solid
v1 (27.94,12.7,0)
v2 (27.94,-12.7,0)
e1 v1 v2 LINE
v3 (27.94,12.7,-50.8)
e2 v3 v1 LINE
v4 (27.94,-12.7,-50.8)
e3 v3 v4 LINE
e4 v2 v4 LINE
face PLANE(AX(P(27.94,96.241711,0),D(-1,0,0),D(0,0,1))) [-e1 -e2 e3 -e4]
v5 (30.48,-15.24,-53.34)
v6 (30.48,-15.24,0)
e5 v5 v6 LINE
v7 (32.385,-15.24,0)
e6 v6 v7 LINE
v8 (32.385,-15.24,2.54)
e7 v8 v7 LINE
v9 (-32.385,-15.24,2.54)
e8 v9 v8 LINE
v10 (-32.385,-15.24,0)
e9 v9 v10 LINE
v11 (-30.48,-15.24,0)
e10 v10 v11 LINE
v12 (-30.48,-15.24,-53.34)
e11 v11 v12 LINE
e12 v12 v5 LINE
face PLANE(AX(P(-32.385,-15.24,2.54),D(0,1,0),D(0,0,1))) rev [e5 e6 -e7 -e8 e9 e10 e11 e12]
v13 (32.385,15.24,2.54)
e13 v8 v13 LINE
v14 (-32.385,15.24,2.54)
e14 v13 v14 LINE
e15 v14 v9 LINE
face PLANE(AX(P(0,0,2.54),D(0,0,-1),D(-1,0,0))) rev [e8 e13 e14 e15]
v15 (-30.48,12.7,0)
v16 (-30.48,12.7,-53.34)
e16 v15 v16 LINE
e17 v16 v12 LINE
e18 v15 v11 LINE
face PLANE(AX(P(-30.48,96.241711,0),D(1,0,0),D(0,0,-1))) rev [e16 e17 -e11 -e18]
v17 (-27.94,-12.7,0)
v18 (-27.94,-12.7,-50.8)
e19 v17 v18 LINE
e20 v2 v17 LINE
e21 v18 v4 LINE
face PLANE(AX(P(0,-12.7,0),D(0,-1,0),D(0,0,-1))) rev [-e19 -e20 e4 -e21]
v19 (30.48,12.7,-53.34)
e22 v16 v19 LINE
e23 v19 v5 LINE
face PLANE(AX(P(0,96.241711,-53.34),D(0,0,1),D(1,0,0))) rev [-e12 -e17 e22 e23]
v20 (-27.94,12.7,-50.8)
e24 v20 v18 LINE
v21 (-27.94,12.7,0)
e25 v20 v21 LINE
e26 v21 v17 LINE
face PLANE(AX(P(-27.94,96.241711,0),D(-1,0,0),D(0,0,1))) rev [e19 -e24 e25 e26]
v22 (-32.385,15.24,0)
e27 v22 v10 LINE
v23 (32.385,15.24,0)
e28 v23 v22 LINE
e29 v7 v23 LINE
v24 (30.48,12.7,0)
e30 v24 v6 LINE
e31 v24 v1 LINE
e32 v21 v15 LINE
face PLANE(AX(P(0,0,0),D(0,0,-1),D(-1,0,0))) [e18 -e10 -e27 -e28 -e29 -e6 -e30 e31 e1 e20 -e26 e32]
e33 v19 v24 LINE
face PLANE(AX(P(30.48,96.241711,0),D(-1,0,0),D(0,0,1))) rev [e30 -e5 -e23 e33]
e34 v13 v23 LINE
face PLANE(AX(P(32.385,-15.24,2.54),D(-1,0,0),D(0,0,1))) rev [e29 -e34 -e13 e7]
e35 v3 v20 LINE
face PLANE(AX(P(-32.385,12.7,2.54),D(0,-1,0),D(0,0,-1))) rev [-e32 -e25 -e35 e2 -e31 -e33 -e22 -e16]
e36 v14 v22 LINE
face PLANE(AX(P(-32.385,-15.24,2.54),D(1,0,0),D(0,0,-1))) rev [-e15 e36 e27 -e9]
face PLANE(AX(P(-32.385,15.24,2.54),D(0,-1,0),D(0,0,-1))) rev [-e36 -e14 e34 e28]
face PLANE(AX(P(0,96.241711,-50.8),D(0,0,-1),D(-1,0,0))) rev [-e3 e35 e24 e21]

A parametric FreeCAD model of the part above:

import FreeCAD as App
import Part
import Sketcher

V = App.Vector
Q = App.Units.Quantity

doc = App.newDocument("Part")
body = doc.addObject("PartDesign::Body", "Body")

sketch1 = doc.addObject("Sketcher::SketchObject", "Sketch")
body.addObject(sketch1)
sketch1.AttachmentSupport = (doc.XY_Plane, [""])
sketch1.MapMode = "FlatFace"
sketch1.addGeometry([
    Part.LineSegment(V(-32, 15, 0), V(-32, -15, 0)),
    Part.LineSegment(V(-32, -15, 0), V(32, -15, 0)),
    Part.LineSegment(V(32, -15, 0), V(32, 15, 0)),
    Part.LineSegment(V(32, 15, 0), V(-32, 15, 0)),
], False)
sketch1.addConstraint([
    Sketcher.Constraint("Coincident", 0, 2, 1, 1),
    Sketcher.Constraint("Coincident", 1, 2, 2, 1),
    Sketcher.Constraint("Coincident", 2, 2, 3, 1),
    Sketcher.Constraint("Coincident", 3, 2, 0, 1),
    Sketcher.Constraint("Vertical", 0),
    Sketcher.Constraint("Horizontal", 1),
    Sketcher.Constraint("Vertical", 2),
    Sketcher.Constraint("Horizontal", 3),
    Sketcher.Constraint("Symmetric", 0, 2, 2, 2, -1, 1),
    Sketcher.Constraint("DistanceY", 0, 2, 0, 1, Q("1.2 in")),
    Sketcher.Constraint("DistanceX", 1, 1, 1, 2, Q("2.55 in")),
])
pad1 = doc.addObject("PartDesign::Pad", "Pad")
body.addObject(pad1)
pad1.Profile = sketch1
pad1.Length = Q("0.1 in")
body2 = doc.addObject("PartDesign::Body", "Body001")

sketch2 = doc.addObject("Sketcher::SketchObject", "Sketch001")
body2.addObject(sketch2)
sketch2.AttachmentSupport = (doc.getObject("XZ_Plane001"), [""])
sketch2.MapMode = "FlatFace"
sketch2.AttachmentOffset = App.Placement(V(0, 0, 0.6 * 25.4), App.Rotation())
sketch2.addGeometry([
    Part.LineSegment(V(-30, 0, 0), V(-30, -53, 0)),
    Part.LineSegment(V(-30, -53, 0), V(30, -53, 0)),
    Part.LineSegment(V(30, -53, 0), V(30, 0, 0)),
    Part.LineSegment(V(30, 0, 0), V(-30, 0, 0)),
], False)
sketch2.addConstraint([
    Sketcher.Constraint("Coincident", 0, 2, 1, 1),
    Sketcher.Constraint("Coincident", 1, 2, 2, 1),
    Sketcher.Constraint("Coincident", 2, 2, 3, 1),
    Sketcher.Constraint("Coincident", 3, 2, 0, 1),
    Sketcher.Constraint("Vertical", 0),
    Sketcher.Constraint("Horizontal", 1),
    Sketcher.Constraint("Vertical", 2),
    Sketcher.Constraint("Horizontal", 3),
    Sketcher.Constraint("Symmetric", 2, 2, 3, 2, -1, 1),
    Sketcher.Constraint("DistanceX", 1, 1, 1, 2, Q("2.4 in")),
    Sketcher.Constraint("DistanceY", 0, 2, 0, 1, Q("2.1 in")),
])
pad2 = doc.addObject("PartDesign::Pad", "Pad001")
body2.addObject(pad2)
pad2.Profile = sketch2
pad2.Length = Q("0.1 in")
pad2.Reversed = True
doc.recompute()

boolean = doc.addObject("PartDesign::Boolean", "Boolean")
body.addObject(boolean)
boolean.Type = "Fuse"
boolean.addObjects([body2])

sketch3 = doc.addObject("Sketcher::SketchObject", "Sketch002")
body.addObject(sketch3)
sketch3.AttachmentSupport = (doc.XZ_Plane, [""])
sketch3.MapMode = "FlatFace"
sketch3.AttachmentOffset = App.Placement(V(0, 0, 0.5 * 25.4), App.Rotation())
sketch3.addGeometry([
    Part.LineSegment(V(-27.9, -50.8, 0), V(-27.9, 0, 0)),
    Part.LineSegment(V(-27.9, 0, 0), V(-30.5, 0, 0)),
    Part.LineSegment(V(-30.5, 0, 0), V(-30.5, -53.3, 0)),
    Part.LineSegment(V(-30.5, -53.3, 0), V(30.5, -53.3, 0)),
    Part.LineSegment(V(30.5, -53.3, 0), V(30.5, 0, 0)),
    Part.LineSegment(V(30.5, 0, 0), V(27.9, 0, 0)),
    Part.LineSegment(V(27.9, 0, 0), V(27.9, -50.8, 0)),
    Part.LineSegment(V(27.9, -50.8, 0), V(-27.9, -50.8, 0)),
], False)
sketch3.addConstraint([
    Sketcher.Constraint("Coincident", 0, 2, 1, 1),
    Sketcher.Constraint("Coincident", 1, 2, 2, 1),
    Sketcher.Constraint("Coincident", 2, 2, 3, 1),
    Sketcher.Constraint("Coincident", 3, 2, 4, 1),
    Sketcher.Constraint("Coincident", 4, 2, 5, 1),
    Sketcher.Constraint("Coincident", 5, 2, 6, 1),
    Sketcher.Constraint("Coincident", 6, 2, 7, 1),
    Sketcher.Constraint("Coincident", 7, 2, 0, 1),
    Sketcher.Constraint("Vertical", 0),
    Sketcher.Constraint("Horizontal", 1),
    Sketcher.Constraint("Vertical", 2),
    Sketcher.Constraint("Horizontal", 3),
    Sketcher.Constraint("Vertical", 4),
    Sketcher.Constraint("Horizontal", 5),
    Sketcher.Constraint("Vertical", 6),
    Sketcher.Constraint("Horizontal", 7),
    Sketcher.Constraint("Symmetric", 1, 2, 4, 2, -1, 1),
    Sketcher.Constraint("Symmetric", 0, 2, 5, 2, -2),
    Sketcher.Constraint("DistanceY", 0, 1, 0, 2, Q("2 in")),
    Sketcher.Constraint("DistanceX", 1, 2, 1, 1, Q("0.1 in")),
    Sketcher.Constraint("DistanceX", 3, 1, 3, 2, Q("2.4 in")),
    Sketcher.Constraint("DistanceY", 2, 2, 2, 1, Q("2.1 in")),
])
pad3 = doc.addObject("PartDesign::Pad", "Pad002")
body.addObject(pad3)
pad3.Profile = sketch3
pad3.Length = Q("1 in")
pad3.Reversed = True

doc.recompute()
